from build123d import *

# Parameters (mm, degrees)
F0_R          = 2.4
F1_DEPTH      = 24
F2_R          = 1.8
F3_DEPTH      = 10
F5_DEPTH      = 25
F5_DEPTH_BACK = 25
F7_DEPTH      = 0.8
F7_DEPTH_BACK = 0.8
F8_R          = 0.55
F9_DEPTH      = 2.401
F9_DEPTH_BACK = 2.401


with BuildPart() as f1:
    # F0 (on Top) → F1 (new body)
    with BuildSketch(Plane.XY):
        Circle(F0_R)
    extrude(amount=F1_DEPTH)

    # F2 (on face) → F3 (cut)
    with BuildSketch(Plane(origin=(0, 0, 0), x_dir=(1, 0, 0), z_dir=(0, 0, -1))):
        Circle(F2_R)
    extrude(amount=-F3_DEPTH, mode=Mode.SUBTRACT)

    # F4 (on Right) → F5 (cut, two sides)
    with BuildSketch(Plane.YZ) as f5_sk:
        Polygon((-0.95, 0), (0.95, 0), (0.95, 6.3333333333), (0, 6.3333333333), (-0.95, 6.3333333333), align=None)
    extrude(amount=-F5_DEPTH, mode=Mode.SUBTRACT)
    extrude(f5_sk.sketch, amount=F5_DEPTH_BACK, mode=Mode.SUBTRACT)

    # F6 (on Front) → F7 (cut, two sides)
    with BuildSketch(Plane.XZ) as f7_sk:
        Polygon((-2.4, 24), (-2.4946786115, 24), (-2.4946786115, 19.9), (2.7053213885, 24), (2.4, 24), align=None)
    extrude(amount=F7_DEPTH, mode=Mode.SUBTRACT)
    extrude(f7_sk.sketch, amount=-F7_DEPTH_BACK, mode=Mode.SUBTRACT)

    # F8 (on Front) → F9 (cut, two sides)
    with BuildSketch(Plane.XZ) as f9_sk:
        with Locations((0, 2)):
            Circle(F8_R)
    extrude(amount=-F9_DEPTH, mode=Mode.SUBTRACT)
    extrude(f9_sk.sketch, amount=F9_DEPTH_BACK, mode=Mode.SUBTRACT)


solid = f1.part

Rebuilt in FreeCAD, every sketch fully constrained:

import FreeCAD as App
import Part
import Sketcher

V = App.Vector
Q = App.Units.Quantity

doc = App.newDocument("Part")
body = doc.addObject("PartDesign::Body", "Body")

# Sketch on XY plane
sketch1 = doc.addObject("Sketcher::SketchObject", "Sketch")
body.addObject(sketch1)
sketch1.AttachmentSupport = (doc.XY_Plane, [""])
sketch1.MapMode = "FlatFace"
sketch1.addGeometry(Part.Circle(V(0, 0, 0), V(0, 0, 1), 2.4), False)
sketch1.addConstraint([
    Sketcher.Constraint("Coincident", 0, 3, -1, 1),
    Sketcher.Constraint("Diameter", 0, Q("4.8 mm")),
])
pad1 = doc.addObject("PartDesign::Pad", "Pad")
body.addObject(pad1)
pad1.Profile = sketch1
pad1.Length = 24

# Sketch on XY plane
sketch2 = doc.addObject("Sketcher::SketchObject", "Sketch001")
body.addObject(sketch2)
sketch2.AttachmentSupport = (doc.XY_Plane, [""])
sketch2.MapMode = "FlatFace"
sketch2.addGeometry(Part.Circle(V(0, 0, 0), V(0, 0, 1), 1.8), False)
sketch2.addConstraint([
    Sketcher.Constraint("Coincident", 0, 3, -1, 1),
    Sketcher.Constraint("Diameter", 0, Q("3.6 mm")),
])
pocket1 = doc.addObject("PartDesign::Pocket", "Pocket")
body.addObject(pocket1)
pocket1.Profile = sketch2
pocket1.Length = 10
pocket1.Reversed = True

# Sketch on YZ plane
sketch3 = doc.addObject("Sketcher::SketchObject", "Sketch002")
body.addObject(sketch3)
sketch3.AttachmentSupport = (doc.YZ_Plane, [""])
sketch3.MapMode = "FlatFace"
sketch3.addGeometry([
    Part.LineSegment(V(-0.9, 0, 0), V(0.9, 0, 0)),
    Part.LineSegment(V(0.9, 0, 0), V(0.9, 6.3, 0)),
    Part.LineSegment(V(0.9, 6.3, 0), V(-0.9, 6.3, 0)),
    Part.LineSegment(V(-0.9, 6.3, 0), V(-0.9, 0, 0)),
], False)
sketch3.addConstraint([
    Sketcher.Constraint("Coincident", 0, 2, 1, 1),
    Sketcher.Constraint("Coincident", 1, 2, 2, 1),
    Sketcher.Constraint("Coincident", 2, 2, 3, 1),
    Sketcher.Constraint("Coincident", 3, 2, 0, 1),
    Sketcher.Constraint("Horizontal", 0),
    Sketcher.Constraint("Vertical", 1),
    Sketcher.Constraint("Horizontal", 2),
    Sketcher.Constraint("Vertical", 3),
    Sketcher.Constraint("Symmetric", 0, 2, 3, 2, -1, 1),
    Sketcher.Constraint("DistanceX", 0, 1, 0, 2, Q("1.9 mm")),
    Sketcher.Constraint("DistanceY", 1, 1, 1, 2, Q("6.333333 mm")),
])
pocket2 = doc.addObject("PartDesign::Pocket", "Pocket001")
body.addObject(pocket2)
pocket2.Profile = sketch3
pocket2.Type = "ThroughAll"
pocket2.Midplane = True

# Sketch on XZ plane
sketch4 = doc.addObject("Sketcher::SketchObject", "Sketch003")
body.addObject(sketch4)
sketch4.AttachmentSupport = (doc.XZ_Plane, [""])
sketch4.MapMode = "FlatFace"
sketch4.addGeometry([
    Part.LineSegment(V(-2.5, 24, 0), V(-2.5, 19.9, 0)),
    Part.LineSegment(V(-2.5, 19.9, 0), V(2.7, 24, 0)),
    Part.LineSegment(V(2.7, 24, 0), V(-2.5, 24, 0)),
], False)
sketch4.addConstraint([
    Sketcher.Constraint("Coincident", 0, 2, 1, 1),
    Sketcher.Constraint("Coincident", 1, 2, 2, 1),
    Sketcher.Constraint("Coincident", 2, 2, 0, 1),
    Sketcher.Constraint("Vertical", 0),
    Sketcher.Constraint("Horizontal", 2),
    Sketcher.Constraint("DistanceX", 2, 2, 2, 1, Q("5.2 mm")),
    Sketcher.Constraint("DistanceY", 0, 2, 0, 1, Q("4.1 mm")),
    Sketcher.Constraint("DistanceY", -1, 1, 1, 2, Q("24 mm")),
    Sketcher.Constraint("DistanceX", 0, 2, -1, 1, Q("2.494679 mm")),
])
pocket3 = doc.addObject("PartDesign::Pocket", "Pocket002")
body.addObject(pocket3)
pocket3.Profile = sketch4
pocket3.Type = "TwoLengths"
pocket3.Length = 0.8
pocket3.Length2 = 0.8
pocket3.Reversed = True

# Sketch on XZ plane
sketch5 = doc.addObject("Sketcher::SketchObject", "Sketch004")
body.addObject(sketch5)
sketch5.AttachmentSupport = (doc.XZ_Plane, [""])
sketch5.MapMode = "FlatFace"
sketch5.addGeometry(Part.Circle(V(0, 2, 0), V(0, 0, 1), 0.6), False)
sketch5.addConstraint([
    Sketcher.Constraint("PointOnObject", 0, 3, -2),
    Sketcher.Constraint("Diameter", 0, Q("1.1 mm")),
    Sketcher.Constraint("DistanceY", -1, 1, 0, 3, Q("2 mm")),
])
pocket4 = doc.addObject("PartDesign::Pocket", "Pocket003")
body.addObject(pocket4)
pocket4.Profile = sketch5
pocket4.Type = "ThroughAll"
pocket4.Midplane = True

doc.recompute()
